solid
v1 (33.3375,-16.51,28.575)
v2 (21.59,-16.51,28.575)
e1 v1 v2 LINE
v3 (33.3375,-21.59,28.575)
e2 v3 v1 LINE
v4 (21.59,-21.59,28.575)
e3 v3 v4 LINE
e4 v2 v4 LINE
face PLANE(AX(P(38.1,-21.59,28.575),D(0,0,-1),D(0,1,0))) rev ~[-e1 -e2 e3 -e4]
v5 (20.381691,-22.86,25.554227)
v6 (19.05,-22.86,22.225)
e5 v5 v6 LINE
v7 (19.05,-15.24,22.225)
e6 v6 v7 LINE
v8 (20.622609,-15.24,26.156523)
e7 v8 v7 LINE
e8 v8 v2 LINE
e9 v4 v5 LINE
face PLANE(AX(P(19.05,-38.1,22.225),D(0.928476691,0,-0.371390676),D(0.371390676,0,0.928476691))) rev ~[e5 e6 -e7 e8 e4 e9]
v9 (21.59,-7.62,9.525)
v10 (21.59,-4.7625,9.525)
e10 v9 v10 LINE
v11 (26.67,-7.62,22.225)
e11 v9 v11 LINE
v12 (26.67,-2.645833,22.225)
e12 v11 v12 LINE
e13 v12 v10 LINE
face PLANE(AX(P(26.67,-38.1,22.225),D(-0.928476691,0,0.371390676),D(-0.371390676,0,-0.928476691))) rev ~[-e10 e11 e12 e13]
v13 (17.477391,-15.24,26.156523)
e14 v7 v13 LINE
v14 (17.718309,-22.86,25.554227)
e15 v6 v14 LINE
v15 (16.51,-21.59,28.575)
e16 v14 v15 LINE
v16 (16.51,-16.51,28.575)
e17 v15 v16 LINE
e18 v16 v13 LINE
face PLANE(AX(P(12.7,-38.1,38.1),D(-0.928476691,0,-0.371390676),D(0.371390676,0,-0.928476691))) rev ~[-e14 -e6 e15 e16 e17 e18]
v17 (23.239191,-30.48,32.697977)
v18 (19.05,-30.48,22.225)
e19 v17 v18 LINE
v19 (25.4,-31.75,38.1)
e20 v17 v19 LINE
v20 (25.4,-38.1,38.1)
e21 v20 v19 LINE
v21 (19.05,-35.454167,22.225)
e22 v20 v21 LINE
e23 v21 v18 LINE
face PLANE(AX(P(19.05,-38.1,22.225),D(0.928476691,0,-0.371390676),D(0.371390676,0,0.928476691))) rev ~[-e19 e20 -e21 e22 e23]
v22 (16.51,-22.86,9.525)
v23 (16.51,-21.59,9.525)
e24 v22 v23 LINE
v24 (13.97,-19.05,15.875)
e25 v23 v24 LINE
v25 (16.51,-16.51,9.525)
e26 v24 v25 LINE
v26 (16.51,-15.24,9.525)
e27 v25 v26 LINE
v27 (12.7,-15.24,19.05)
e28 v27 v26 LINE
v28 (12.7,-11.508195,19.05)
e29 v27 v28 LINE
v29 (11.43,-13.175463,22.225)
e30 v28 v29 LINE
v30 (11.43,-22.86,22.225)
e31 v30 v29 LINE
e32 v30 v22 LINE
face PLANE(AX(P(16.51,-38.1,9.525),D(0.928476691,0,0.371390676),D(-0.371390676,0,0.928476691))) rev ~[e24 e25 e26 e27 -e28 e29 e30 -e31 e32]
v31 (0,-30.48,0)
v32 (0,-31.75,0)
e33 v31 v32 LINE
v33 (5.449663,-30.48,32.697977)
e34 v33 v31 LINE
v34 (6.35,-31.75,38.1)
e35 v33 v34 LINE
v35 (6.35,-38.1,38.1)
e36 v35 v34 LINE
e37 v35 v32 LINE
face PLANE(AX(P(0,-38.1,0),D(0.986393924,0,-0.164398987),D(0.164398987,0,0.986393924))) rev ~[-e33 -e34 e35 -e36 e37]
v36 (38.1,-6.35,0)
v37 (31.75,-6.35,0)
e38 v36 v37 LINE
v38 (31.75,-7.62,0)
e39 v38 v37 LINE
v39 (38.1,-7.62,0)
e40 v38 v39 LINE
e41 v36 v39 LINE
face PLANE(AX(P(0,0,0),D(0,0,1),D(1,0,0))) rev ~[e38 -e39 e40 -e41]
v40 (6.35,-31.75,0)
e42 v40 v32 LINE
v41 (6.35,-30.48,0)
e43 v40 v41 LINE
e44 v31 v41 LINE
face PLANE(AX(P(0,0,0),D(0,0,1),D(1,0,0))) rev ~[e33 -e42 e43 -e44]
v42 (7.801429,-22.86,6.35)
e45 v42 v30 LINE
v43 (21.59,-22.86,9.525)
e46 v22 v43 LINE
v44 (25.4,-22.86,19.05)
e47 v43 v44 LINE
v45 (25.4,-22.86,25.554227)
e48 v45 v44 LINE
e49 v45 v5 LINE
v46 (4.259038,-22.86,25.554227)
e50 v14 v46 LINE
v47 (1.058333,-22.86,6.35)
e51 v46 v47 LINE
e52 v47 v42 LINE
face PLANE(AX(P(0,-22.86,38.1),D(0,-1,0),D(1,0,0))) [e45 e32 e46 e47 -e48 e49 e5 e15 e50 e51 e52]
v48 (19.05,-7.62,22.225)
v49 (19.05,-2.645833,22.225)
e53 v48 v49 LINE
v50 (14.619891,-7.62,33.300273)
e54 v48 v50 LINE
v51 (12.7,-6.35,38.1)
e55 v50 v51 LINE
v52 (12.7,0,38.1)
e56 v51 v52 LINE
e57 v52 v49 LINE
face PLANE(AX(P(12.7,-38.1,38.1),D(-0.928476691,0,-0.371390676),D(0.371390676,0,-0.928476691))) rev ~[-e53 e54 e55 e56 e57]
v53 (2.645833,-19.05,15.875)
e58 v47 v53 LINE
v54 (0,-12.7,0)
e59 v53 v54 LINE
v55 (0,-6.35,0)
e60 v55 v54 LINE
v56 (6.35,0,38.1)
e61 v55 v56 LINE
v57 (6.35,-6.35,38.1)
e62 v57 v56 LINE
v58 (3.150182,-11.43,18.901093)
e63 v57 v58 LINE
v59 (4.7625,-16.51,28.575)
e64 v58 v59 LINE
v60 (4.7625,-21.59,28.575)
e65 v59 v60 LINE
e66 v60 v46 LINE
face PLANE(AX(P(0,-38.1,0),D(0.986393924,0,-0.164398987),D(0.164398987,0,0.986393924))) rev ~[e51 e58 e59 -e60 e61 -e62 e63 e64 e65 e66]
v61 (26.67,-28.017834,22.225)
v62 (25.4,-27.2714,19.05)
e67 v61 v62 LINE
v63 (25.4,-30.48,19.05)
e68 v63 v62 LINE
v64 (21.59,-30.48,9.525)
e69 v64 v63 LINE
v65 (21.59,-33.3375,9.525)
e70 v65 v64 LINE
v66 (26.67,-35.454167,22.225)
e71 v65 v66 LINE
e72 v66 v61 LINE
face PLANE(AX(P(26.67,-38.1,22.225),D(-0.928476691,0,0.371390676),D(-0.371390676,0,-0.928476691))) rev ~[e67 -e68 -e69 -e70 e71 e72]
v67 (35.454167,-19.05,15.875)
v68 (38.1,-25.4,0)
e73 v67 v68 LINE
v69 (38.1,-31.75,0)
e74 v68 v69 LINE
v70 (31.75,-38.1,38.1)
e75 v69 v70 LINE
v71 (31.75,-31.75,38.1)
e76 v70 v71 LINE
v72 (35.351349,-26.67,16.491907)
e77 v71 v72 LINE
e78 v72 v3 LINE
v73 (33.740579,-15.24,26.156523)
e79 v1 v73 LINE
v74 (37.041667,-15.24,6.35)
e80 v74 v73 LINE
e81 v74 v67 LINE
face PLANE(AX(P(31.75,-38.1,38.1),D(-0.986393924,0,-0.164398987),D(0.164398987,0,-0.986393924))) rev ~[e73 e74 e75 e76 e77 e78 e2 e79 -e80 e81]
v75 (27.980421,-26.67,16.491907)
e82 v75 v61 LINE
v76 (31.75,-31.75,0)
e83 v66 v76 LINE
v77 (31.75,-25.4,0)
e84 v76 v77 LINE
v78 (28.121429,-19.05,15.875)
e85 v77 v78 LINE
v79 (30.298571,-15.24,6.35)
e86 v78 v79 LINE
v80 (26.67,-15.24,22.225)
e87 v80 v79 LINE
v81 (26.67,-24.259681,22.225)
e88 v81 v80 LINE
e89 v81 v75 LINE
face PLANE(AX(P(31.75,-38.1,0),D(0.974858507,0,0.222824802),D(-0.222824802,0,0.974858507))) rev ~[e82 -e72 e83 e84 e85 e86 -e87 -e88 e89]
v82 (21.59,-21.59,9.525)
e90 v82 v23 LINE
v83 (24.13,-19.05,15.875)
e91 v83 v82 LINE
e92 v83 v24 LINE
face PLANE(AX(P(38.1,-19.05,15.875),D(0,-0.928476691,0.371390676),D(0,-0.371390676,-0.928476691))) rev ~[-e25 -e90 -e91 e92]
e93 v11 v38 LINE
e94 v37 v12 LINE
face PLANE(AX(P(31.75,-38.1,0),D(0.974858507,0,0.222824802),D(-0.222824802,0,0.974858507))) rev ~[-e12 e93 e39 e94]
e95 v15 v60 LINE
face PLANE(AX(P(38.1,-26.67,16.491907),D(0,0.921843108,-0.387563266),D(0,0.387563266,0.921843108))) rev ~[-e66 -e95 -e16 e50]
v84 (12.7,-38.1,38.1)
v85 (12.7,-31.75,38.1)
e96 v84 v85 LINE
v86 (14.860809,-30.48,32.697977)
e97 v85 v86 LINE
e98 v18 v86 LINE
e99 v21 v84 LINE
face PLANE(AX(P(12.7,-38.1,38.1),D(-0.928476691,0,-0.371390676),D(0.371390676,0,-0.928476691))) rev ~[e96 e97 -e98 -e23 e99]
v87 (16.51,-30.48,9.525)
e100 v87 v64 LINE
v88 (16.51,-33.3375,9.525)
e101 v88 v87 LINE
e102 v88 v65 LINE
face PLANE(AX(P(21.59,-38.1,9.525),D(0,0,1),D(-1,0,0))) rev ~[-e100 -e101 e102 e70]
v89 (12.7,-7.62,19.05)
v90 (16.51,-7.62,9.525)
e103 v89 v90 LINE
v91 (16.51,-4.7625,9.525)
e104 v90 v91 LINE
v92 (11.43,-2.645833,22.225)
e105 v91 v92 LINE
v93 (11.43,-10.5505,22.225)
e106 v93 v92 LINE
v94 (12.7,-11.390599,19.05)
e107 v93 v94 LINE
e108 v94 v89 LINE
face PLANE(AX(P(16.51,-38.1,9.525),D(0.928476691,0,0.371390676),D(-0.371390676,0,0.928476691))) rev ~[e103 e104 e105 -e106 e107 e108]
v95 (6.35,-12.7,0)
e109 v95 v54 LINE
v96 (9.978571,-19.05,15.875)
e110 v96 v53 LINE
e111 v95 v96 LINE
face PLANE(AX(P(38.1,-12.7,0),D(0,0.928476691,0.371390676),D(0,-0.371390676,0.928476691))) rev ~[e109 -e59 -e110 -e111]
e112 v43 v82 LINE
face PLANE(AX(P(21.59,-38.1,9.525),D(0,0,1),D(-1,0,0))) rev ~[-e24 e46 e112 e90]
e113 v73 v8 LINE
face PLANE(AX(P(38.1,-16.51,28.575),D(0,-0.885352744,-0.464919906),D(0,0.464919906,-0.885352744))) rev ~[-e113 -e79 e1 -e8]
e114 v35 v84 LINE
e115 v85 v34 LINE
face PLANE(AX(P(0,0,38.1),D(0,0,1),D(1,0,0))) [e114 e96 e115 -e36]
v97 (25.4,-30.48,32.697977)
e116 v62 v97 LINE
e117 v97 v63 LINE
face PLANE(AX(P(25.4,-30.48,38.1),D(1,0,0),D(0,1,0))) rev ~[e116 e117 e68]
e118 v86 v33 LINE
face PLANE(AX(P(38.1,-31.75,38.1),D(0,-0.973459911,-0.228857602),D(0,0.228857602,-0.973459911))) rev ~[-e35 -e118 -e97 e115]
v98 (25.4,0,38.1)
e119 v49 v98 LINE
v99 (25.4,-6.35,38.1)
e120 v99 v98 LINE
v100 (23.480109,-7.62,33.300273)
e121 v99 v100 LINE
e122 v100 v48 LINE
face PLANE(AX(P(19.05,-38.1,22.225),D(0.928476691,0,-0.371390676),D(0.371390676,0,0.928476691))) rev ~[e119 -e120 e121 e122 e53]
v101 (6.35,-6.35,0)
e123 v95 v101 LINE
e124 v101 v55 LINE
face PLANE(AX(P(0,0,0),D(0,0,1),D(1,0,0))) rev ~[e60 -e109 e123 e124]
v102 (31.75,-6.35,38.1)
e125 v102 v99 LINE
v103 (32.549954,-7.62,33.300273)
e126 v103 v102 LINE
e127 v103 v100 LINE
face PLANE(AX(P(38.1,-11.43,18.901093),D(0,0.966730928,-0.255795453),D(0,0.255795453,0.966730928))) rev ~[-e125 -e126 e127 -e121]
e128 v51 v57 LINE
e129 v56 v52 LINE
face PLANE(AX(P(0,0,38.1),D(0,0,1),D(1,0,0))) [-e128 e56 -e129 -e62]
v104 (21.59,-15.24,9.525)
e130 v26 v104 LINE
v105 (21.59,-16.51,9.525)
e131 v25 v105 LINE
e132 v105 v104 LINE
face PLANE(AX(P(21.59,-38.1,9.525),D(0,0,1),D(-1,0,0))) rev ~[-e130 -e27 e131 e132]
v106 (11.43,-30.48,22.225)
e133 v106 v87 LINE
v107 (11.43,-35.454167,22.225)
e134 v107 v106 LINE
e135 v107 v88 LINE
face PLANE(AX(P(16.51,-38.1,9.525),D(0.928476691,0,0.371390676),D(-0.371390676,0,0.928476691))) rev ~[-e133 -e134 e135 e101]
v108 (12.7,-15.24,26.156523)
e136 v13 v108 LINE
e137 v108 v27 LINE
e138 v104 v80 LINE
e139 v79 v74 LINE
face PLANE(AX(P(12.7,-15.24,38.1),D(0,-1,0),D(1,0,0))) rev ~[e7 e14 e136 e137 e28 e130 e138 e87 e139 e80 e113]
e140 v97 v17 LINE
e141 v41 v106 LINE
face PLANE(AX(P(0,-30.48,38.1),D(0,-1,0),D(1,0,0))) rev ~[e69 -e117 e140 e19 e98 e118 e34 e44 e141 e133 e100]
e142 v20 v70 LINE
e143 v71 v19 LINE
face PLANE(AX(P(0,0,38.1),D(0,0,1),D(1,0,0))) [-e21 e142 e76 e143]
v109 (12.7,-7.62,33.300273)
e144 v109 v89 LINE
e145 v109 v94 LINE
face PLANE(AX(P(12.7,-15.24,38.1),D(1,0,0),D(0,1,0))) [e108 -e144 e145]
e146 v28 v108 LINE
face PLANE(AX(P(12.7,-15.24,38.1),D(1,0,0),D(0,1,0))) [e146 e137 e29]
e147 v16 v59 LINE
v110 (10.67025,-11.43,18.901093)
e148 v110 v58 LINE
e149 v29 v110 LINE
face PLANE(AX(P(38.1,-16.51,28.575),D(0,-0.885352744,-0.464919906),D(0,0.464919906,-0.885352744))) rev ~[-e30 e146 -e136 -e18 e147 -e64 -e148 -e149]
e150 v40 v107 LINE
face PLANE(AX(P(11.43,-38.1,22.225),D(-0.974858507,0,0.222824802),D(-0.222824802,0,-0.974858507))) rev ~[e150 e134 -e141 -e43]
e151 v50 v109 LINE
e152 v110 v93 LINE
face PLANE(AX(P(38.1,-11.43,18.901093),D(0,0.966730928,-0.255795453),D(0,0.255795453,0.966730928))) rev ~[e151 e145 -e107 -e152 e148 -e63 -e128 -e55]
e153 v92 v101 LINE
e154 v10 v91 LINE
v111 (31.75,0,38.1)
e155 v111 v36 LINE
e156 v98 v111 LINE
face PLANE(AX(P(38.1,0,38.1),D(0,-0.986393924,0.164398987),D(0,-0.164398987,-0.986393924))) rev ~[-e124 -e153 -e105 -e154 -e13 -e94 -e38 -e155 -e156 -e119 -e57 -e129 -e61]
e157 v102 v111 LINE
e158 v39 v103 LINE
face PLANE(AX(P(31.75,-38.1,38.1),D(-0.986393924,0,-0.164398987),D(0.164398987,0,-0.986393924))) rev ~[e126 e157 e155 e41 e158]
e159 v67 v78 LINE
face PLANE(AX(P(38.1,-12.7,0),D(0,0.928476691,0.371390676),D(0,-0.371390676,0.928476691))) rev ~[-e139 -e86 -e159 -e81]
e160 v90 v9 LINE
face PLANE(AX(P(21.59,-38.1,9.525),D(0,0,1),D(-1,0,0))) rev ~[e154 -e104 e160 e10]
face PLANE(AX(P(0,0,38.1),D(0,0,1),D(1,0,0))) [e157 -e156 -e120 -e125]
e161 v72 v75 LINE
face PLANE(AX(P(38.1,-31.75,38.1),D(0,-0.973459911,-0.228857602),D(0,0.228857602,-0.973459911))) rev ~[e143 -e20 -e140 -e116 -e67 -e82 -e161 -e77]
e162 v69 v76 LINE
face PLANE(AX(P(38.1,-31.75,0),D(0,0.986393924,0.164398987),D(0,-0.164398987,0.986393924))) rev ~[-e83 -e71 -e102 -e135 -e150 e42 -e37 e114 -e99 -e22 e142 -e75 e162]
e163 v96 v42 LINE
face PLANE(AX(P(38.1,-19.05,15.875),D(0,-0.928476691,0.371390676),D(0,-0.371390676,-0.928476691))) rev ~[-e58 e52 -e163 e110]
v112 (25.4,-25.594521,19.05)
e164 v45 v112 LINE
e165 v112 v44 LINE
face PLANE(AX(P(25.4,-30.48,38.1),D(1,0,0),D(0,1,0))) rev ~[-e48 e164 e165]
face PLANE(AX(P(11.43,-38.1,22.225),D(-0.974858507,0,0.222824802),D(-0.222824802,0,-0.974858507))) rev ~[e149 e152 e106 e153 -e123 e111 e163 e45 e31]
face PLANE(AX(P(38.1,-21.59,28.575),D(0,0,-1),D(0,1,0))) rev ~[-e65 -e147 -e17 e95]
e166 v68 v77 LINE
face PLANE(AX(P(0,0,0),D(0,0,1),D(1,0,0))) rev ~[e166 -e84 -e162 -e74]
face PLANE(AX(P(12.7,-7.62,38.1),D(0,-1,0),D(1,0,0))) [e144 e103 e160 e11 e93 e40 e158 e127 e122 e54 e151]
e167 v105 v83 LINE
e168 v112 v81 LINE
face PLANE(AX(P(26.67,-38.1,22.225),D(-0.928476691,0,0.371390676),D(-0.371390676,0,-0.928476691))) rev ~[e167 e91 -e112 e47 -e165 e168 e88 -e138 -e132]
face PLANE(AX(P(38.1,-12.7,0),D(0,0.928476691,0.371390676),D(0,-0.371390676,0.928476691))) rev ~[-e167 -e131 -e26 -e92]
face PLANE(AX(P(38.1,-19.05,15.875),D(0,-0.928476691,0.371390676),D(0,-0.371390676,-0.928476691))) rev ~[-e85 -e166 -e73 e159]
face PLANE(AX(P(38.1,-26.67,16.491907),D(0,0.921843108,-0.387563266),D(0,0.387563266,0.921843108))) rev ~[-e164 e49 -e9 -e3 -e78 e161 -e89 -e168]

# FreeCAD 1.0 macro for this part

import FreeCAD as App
import Part
import Sketcher

V = App.Vector
Q = App.Units.Quantity

doc = App.newDocument("Part")
body = doc.addObject("PartDesign::Body", "Body")

# Sketch on XZ plane
sketch1 = body.newObject("Sketcher::SketchObject", "Sketch")
sketch1.AttachmentSupport = (doc.getObject("XZ_Plane"), [""])
sketch1.MapMode = "FlatFace"
sketch1.addGeometry([
    Part.LineSegment(V(0, 38.1, 0), V(0, 0, 0)),
    Part.LineSegment(V(0, 0, 0), V(38.1, 0, 0)),
    Part.LineSegment(V(38.1, 0, 0), V(38.1, 38.1, 0)),
    Part.LineSegment(V(38.1, 38.1, 0), V(0, 38.1, 0)),
], False)
sketch1.addConstraint([
    Sketcher.Constraint("Coincident", 0, 2, 1, 1),
    Sketcher.Constraint("Coincident", 1, 2, 2, 1),
    Sketcher.Constraint("Coincident", 2, 2, 3, 1),
    Sketcher.Constraint("Coincident", 3, 2, 0, 1),
    Sketcher.Constraint("Vertical", 0),
    Sketcher.Constraint("Horizontal", 1),
    Sketcher.Constraint("Vertical", 2),
    Sketcher.Constraint("Horizontal", 3),
    Sketcher.Constraint("Coincident", 0, 2, -1, 1),
    Sketcher.Constraint("Equal", 3, 0),
    Sketcher.Constraint("DistanceX", 1, 1, 1, 2, Q("1.5 in")),
])
pad1 = body.newObject("PartDesign::Pad", "Pad")
pad1.Profile = sketch1
pad1.Length = Q("1.5 in")

# Sketch on YZ plane
sketch2 = body.newObject("Sketcher::SketchObject", "Sketch001")
sketch2.AttachmentSupport = (doc.getObject("YZ_Plane"), [""])
sketch2.MapMode = "FlatFace"
sketch2.AttachmentOffset = App.Placement(V(0, 0, 1.5 * 25.4), App.Rotation())
sketch2.addGeometry([
    Part.LineSegment(V(-11.43, 18.901093, 0), V(-6.35, 38.1, 0)),  # 0
    Part.LineSegment(V(-6.35, 38.1, 0), V(-31.75, 38.1, 0)),  # 1
    Part.LineSegment(V(-31.75, 38.1, 0), V(-26.67, 16.491907, 0)),  # 2
    Part.LineSegment(V(-26.67, 16.491907, 0), V(-21.59, 28.575, 0)),  # 3
    Part.LineSegment(V(-21.59, 28.575, 0), V(-16.51, 28.575, 0)),  # 4
    Part.LineSegment(V(-16.51, 28.575, 0), V(-11.43, 18.901093, 0)),  # 5
    Part.LineSegment(V(-6.35, 0, 0), V(0, 0, 0)),  # 6
    Part.LineSegment(V(0, 0, 0), V(0, 38.1, 0)),  # 7
    Part.LineSegment(V(0, 38.1, 0), V(-6.35, 0, 0)),  # 8
    Part.LineSegment(V(-25.4, 0, 0), V(-12.7, 0, 0)),  # 9
    Part.LineSegment(V(-12.7, 0, 0), V(-19.05, 15.875, 0)),  # 10
    Part.LineSegment(V(-19.05, 15.875, 0), V(-25.4, 0, 0)),  # 11
    Part.LineSegment(V(-31.75, 0, 0), V(-38.1, 38.1, 0)),  # 12
    Part.LineSegment(V(-38.1, 38.1, 0), V(-38.1, 0, 0)),  # 13
    Part.LineSegment(V(-38.1, 0, 0), V(-31.75, 0, 0)),  # 14
], False)
sketch2.addConstraint([
    Sketcher.Constraint("Coincident", 0, 2, 1, 1),
    Sketcher.Constraint("Coincident", 1, 2, 2, 1),
    Sketcher.Constraint("Coincident", 2, 2, 3, 1),
    Sketcher.Constraint("Coincident", 3, 2, 4, 1),
    Sketcher.Constraint("Coincident", 4, 2, 5, 1),
    Sketcher.Constraint("Coincident", 5, 2, 0, 1),
    Sketcher.Constraint("Coincident", 6, 2, 7, 1),
    Sketcher.Constraint("Coincident", 7, 2, 8, 1),
    Sketcher.Constraint("Coincident", 8, 2, 6, 1),
    Sketcher.Constraint("Coincident", 9, 2, 10, 1),
    Sketcher.Constraint("Coincident", 10, 2, 11, 1),
    Sketcher.Constraint("Coincident", 11, 2, 9, 1),
    Sketcher.Constraint("Coincident", 12, 2, 13, 1),
    Sketcher.Constraint("Coincident", 13, 2, 14, 1),
    Sketcher.Constraint("Coincident", 14, 2, 12, 1),
    Sketcher.Constraint("Horizontal", 1),
    Sketcher.Constraint("Horizontal", 4),
    Sketcher.Constraint("Horizontal", 6),
    Sketcher.Constraint("Vertical", 7),
    Sketcher.Constraint("Horizontal", 9),
    Sketcher.Constraint("Vertical", 13),
    Sketcher.Constraint("Horizontal", 14),
    Sketcher.Constraint("Coincident", 6, 2, -1, 1),
    Sketcher.Constraint("PointOnObject", 9, 2, -1),
    Sketcher.Constraint("PointOnObject", 13, 2, -1),
    Sketcher.Constraint("Horizontal", 1, 2, 7, 2),
    Sketcher.Constraint("Horizontal", 7, 2, 12, 2),
    Sketcher.Constraint("Vertical", 0, 2, 8, 2),
    Sketcher.Constraint("Vertical", 1, 2, 14, 2),
    Sketcher.Constraint("Equal", 6, 14),
    Sketcher.Constraint("Equal", 10, 11),
    Sketcher.Constraint("DistanceX", 1, 2, 1, 1, Q("1 in")),
    Sketcher.Constraint("DistanceX", 4, 1, 4, 2, Q("0.2 in")),
    Sketcher.Constraint("DistanceX", 9, 1, 9, 2, Q("0.5 in")),
    Sketcher.Constraint("DistanceY", 7, 1, 7, 2, Q("1.5 in")),
    Sketcher.Constraint("DistanceX", 11, 2, -1, 1, Q("1 in")),
    Sketcher.Constraint("DistanceX", 13, 2, 9, 2, Q("1 in")),
    Sketcher.Constraint("DistanceX", 1, 2, 2, 2, Q("0.2 in")),
    Sketcher.Constraint("DistanceX", 2, 2, 3, 2, Q("0.2 in")),
    Sketcher.Constraint("DistanceX", 4, 2, 5, 2, Q("0.2 in")),
    Sketcher.Constraint("DistanceY", 10, 2, 3, 2, Q("0.5 in")),
    Sketcher.Constraint("DistanceY", -1, 1, 3, 2, Q("1.125 in")),
    Sketcher.Constraint("Distance", 0, 19.859618),
    Sketcher.Constraint("Distance", 2, 22.197209),
])
pocket1 = body.newObject("PartDesign::Pocket", "Pocket")
pocket1.Profile = sketch2
pocket1.Length = Q("1.5 in")

# Sketch on XZ plane
sketch3 = body.newObject("Sketcher::SketchObject", "Sketch002")
sketch3.AttachmentSupport = (doc.getObject("XZ_Plane"), [""])
sketch3.MapMode = "FlatFace"
sketch3.AttachmentOffset = App.Placement(V(0, 0, 1.5 * 25.4), App.Rotation())
sketch3.addGeometry([
    Part.LineSegment(V(0, 38.1, 0), V(0, 0, 0)),  # 0
    Part.LineSegment(V(0, 0, 0), V(6.35, 38.1, 0)),  # 1
    Part.LineSegment(V(6.35, 38.1, 0), V(0, 38.1, 0)),  # 2
    Part.LineSegment(V(11.43, 22.225, 0), V(6.35, 0, 0)),  # 3
    Part.LineSegment(V(6.35, 0, 0), V(31.75, 0, 0)),  # 4
    Part.LineSegment(V(31.75, 0, 0), V(26.67, 22.225, 0)),  # 5
    Part.LineSegment(V(26.67, 22.225, 0), V(21.59, 9.525, 0)),  # 6
    Part.LineSegment(V(21.59, 9.525, 0), V(16.51, 9.525, 0)),  # 7
    Part.LineSegment(V(16.51, 9.525, 0), V(11.43, 22.225, 0)),  # 8
    Part.LineSegment(V(31.75, 38.1, 0), V(38.1, 0, 0)),  # 9
    Part.LineSegment(V(38.1, 0, 0), V(38.1, 38.1, 0)),  # 10
    Part.LineSegment(V(38.1, 38.1, 0), V(31.75, 38.1, 0)),  # 11
    Part.LineSegment(V(25.4, 38.1, 0), V(12.7, 38.1, 0)),  # 12
    Part.LineSegment(V(12.7, 38.1, 0), V(19.05, 22.225, 0)),  # 13
    Part.LineSegment(V(19.05, 22.225, 0), V(25.4, 38.1, 0)),  # 14
], False)
sketch3.addConstraint([
    Sketcher.Constraint("Coincident", 0, 2, 1, 1),
    Sketcher.Constraint("Coincident", 1, 2, 2, 1),
    Sketcher.Constraint("Coincident", 2, 2, 0, 1),
    Sketcher.Constraint("Coincident", 3, 2, 4, 1),
    Sketcher.Constraint("Coincident", 4, 2, 5, 1),
    Sketcher.Constraint("Coincident", 5, 2, 6, 1),
    Sketcher.Constraint("Coincident", 6, 2, 7, 1),
    Sketcher.Constraint("Coincident", 7, 2, 8, 1),
    Sketcher.Constraint("Coincident", 8, 2, 3, 1),
    Sketcher.Constraint("Coincident", 9, 2, 10, 1),
    Sketcher.Constraint("Coincident", 10, 2, 11, 1),
    Sketcher.Constraint("Coincident", 11, 2, 9, 1),
    Sketcher.Constraint("Coincident", 12, 2, 13, 1),
    Sketcher.Constraint("Coincident", 13, 2, 14, 1),
    Sketcher.Constraint("Coincident", 14, 2, 12, 1),
    Sketcher.Constraint("Vertical", 0),
    Sketcher.Constraint("Horizontal", 2),
    Sketcher.Constraint("Horizontal", 4),
    Sketcher.Constraint("Horizontal", 7),
    Sketcher.Constraint("Vertical", 10),
    Sketcher.Constraint("Horizontal", 11),
    Sketcher.Constraint("Horizontal", 12),
    Sketcher.Constraint("Coincident", 0, 2, -1, 1),
    Sketcher.Constraint("PointOnObject", 3, 2, -1),
    Sketcher.Constraint("PointOnObject", 9, 2, -1),
    Sketcher.Constraint("Parallel", 8, 13),
    Sketcher.Constraint("Parallel", 6, 14),
    Sketcher.Constraint("Horizontal", 5, 2, 8, 2),
    Sketcher.Constraint("Horizontal", 2, 2, 10, 2),
    Sketcher.Constraint("Horizontal", 11, 2, 12, 2),
    Sketcher.Constraint("Horizontal", 8, 2, 13, 2),
    Sketcher.Constraint("Vertical", 1, 2, 3, 2),
    Sketcher.Constraint("Vertical", 4, 2, 11, 2),
    Sketcher.Constraint("Equal", 2, 11),
    Sketcher.Constraint("Equal", 3, 5),
    Sketcher.Constraint("Equal", 6, 8),
    Sketcher.Constraint("DistanceX", 4, 1, 4, 2, Q("1 in")),
    Sketcher.Constraint("DistanceX", 7, 2, 7, 1, Q("0.2 in")),
    Sketcher.Constraint("DistanceX", 12, 2, 12, 1, Q("0.5 in")),
    Sketcher.Constraint("DistanceY", 0, 2, 0, 1, Q("1.5 in")),
    Sketcher.Constraint("DistanceX", -1, 1, 14, 2, Q("1 in")),
    Sketcher.Constraint("DistanceX", 2, 2, 2, 1, Q("0.25 in")),
    Sketcher.Constraint("DistanceX", 5, 2, 4, 2, Q("0.2 in")),
    Sketcher.Constraint("DistanceY", 6, 2, 5, 2, Q("0.5 in")),
])
pocket2 = body.newObject("PartDesign::Pocket", "Pocket001")
pocket2.Profile = sketch3
pocket2.Length = Q("1.5 in")

# Sketch on XY plane
sketch4 = body.newObject("Sketcher::SketchObject", "Sketch003")
sketch4.AttachmentSupport = (doc.getObject("XY_Plane"), [""])
sketch4.MapMode = "FlatFace"
sketch4.AttachmentOffset = App.Placement(V(0, 0, 1.5 * 25.4), App.Rotation())
sketch4.addGeometry([
    Part.LineSegment(V(12.7, -7.62, 0), V(12.7, -15.24, 0)),  # 0
    Part.LineSegment(V(12.7, -15.24, 0), V(38.1, -15.24, 0)),  # 1
    Part.LineSegment(V(38.1, -15.24, 0), V(38.1, -7.62, 0)),  # 2
    Part.LineSegment(V(38.1, -7.62, 0), V(12.7, -7.62, 0)),  # 3
    Part.LineSegment(V(0, -22.86, 0), V(0, -30.48, 0)),  # 4
    Part.LineSegment(V(0, -30.48, 0), V(25.4, -30.48, 0)),  # 5
    Part.LineSegment(V(25.4, -30.48, 0), V(25.4, -22.86, 0)),  # 6
    Part.LineSegment(V(25.4, -22.86, 0), V(0, -22.86, 0)),  # 7
], False)
sketch4.addConstraint([
    Sketcher.Constraint("Coincident", 0, 2, 1, 1),
    Sketcher.Constraint("Coincident", 1, 2, 2, 1),
    Sketcher.Constraint("Coincident", 2, 2, 3, 1),
    Sketcher.Constraint("Coincident", 3, 2, 0, 1),
    Sketcher.Constraint("Coincident", 4, 2, 5, 1),
    Sketcher.Constraint("Coincident", 5, 2, 6, 1),
    Sketcher.Constraint("Coincident", 6, 2, 7, 1),
    Sketcher.Constraint("Coincident", 7, 2, 4, 1),
    Sketcher.Constraint("Vertical", 0),
    Sketcher.Constraint("Horizontal", 1),
    Sketcher.Constraint("Vertical", 2),
    Sketcher.Constraint("Horizontal", 3),
    Sketcher.Constraint("Vertical", 4),
    Sketcher.Constraint("Horizontal", 5),
    Sketcher.Constraint("Vertical", 6),
    Sketcher.Constraint("Horizontal", 7),
    Sketcher.Constraint("PointOnObject", 4, 2, -2),
    Sketcher.Constraint("Equal", 3, 5),
    Sketcher.Constraint("Equal", 2, 4),
    Sketcher.Constraint("DistanceX", 1, 1, 1, 2, Q("1 in")),
    Sketcher.Constraint("DistanceY", 0, 2, 0, 1, Q("0.3 in")),
    Sketcher.Constraint("DistanceX", -1, 1, 0, 2, Q("0.5 in")),
    Sketcher.Constraint("DistanceY", 0, 2, -1, 1, Q("0.6 in")),
    Sketcher.Constraint("DistanceY", 4, 2, -1, 1, Q("1.2 in")),
])
pocket3 = body.newObject("PartDesign::Pocket", "Pocket002")
pocket3.Profile = sketch4
pocket3.Length = Q("1.5 in")

doc.recompute()
